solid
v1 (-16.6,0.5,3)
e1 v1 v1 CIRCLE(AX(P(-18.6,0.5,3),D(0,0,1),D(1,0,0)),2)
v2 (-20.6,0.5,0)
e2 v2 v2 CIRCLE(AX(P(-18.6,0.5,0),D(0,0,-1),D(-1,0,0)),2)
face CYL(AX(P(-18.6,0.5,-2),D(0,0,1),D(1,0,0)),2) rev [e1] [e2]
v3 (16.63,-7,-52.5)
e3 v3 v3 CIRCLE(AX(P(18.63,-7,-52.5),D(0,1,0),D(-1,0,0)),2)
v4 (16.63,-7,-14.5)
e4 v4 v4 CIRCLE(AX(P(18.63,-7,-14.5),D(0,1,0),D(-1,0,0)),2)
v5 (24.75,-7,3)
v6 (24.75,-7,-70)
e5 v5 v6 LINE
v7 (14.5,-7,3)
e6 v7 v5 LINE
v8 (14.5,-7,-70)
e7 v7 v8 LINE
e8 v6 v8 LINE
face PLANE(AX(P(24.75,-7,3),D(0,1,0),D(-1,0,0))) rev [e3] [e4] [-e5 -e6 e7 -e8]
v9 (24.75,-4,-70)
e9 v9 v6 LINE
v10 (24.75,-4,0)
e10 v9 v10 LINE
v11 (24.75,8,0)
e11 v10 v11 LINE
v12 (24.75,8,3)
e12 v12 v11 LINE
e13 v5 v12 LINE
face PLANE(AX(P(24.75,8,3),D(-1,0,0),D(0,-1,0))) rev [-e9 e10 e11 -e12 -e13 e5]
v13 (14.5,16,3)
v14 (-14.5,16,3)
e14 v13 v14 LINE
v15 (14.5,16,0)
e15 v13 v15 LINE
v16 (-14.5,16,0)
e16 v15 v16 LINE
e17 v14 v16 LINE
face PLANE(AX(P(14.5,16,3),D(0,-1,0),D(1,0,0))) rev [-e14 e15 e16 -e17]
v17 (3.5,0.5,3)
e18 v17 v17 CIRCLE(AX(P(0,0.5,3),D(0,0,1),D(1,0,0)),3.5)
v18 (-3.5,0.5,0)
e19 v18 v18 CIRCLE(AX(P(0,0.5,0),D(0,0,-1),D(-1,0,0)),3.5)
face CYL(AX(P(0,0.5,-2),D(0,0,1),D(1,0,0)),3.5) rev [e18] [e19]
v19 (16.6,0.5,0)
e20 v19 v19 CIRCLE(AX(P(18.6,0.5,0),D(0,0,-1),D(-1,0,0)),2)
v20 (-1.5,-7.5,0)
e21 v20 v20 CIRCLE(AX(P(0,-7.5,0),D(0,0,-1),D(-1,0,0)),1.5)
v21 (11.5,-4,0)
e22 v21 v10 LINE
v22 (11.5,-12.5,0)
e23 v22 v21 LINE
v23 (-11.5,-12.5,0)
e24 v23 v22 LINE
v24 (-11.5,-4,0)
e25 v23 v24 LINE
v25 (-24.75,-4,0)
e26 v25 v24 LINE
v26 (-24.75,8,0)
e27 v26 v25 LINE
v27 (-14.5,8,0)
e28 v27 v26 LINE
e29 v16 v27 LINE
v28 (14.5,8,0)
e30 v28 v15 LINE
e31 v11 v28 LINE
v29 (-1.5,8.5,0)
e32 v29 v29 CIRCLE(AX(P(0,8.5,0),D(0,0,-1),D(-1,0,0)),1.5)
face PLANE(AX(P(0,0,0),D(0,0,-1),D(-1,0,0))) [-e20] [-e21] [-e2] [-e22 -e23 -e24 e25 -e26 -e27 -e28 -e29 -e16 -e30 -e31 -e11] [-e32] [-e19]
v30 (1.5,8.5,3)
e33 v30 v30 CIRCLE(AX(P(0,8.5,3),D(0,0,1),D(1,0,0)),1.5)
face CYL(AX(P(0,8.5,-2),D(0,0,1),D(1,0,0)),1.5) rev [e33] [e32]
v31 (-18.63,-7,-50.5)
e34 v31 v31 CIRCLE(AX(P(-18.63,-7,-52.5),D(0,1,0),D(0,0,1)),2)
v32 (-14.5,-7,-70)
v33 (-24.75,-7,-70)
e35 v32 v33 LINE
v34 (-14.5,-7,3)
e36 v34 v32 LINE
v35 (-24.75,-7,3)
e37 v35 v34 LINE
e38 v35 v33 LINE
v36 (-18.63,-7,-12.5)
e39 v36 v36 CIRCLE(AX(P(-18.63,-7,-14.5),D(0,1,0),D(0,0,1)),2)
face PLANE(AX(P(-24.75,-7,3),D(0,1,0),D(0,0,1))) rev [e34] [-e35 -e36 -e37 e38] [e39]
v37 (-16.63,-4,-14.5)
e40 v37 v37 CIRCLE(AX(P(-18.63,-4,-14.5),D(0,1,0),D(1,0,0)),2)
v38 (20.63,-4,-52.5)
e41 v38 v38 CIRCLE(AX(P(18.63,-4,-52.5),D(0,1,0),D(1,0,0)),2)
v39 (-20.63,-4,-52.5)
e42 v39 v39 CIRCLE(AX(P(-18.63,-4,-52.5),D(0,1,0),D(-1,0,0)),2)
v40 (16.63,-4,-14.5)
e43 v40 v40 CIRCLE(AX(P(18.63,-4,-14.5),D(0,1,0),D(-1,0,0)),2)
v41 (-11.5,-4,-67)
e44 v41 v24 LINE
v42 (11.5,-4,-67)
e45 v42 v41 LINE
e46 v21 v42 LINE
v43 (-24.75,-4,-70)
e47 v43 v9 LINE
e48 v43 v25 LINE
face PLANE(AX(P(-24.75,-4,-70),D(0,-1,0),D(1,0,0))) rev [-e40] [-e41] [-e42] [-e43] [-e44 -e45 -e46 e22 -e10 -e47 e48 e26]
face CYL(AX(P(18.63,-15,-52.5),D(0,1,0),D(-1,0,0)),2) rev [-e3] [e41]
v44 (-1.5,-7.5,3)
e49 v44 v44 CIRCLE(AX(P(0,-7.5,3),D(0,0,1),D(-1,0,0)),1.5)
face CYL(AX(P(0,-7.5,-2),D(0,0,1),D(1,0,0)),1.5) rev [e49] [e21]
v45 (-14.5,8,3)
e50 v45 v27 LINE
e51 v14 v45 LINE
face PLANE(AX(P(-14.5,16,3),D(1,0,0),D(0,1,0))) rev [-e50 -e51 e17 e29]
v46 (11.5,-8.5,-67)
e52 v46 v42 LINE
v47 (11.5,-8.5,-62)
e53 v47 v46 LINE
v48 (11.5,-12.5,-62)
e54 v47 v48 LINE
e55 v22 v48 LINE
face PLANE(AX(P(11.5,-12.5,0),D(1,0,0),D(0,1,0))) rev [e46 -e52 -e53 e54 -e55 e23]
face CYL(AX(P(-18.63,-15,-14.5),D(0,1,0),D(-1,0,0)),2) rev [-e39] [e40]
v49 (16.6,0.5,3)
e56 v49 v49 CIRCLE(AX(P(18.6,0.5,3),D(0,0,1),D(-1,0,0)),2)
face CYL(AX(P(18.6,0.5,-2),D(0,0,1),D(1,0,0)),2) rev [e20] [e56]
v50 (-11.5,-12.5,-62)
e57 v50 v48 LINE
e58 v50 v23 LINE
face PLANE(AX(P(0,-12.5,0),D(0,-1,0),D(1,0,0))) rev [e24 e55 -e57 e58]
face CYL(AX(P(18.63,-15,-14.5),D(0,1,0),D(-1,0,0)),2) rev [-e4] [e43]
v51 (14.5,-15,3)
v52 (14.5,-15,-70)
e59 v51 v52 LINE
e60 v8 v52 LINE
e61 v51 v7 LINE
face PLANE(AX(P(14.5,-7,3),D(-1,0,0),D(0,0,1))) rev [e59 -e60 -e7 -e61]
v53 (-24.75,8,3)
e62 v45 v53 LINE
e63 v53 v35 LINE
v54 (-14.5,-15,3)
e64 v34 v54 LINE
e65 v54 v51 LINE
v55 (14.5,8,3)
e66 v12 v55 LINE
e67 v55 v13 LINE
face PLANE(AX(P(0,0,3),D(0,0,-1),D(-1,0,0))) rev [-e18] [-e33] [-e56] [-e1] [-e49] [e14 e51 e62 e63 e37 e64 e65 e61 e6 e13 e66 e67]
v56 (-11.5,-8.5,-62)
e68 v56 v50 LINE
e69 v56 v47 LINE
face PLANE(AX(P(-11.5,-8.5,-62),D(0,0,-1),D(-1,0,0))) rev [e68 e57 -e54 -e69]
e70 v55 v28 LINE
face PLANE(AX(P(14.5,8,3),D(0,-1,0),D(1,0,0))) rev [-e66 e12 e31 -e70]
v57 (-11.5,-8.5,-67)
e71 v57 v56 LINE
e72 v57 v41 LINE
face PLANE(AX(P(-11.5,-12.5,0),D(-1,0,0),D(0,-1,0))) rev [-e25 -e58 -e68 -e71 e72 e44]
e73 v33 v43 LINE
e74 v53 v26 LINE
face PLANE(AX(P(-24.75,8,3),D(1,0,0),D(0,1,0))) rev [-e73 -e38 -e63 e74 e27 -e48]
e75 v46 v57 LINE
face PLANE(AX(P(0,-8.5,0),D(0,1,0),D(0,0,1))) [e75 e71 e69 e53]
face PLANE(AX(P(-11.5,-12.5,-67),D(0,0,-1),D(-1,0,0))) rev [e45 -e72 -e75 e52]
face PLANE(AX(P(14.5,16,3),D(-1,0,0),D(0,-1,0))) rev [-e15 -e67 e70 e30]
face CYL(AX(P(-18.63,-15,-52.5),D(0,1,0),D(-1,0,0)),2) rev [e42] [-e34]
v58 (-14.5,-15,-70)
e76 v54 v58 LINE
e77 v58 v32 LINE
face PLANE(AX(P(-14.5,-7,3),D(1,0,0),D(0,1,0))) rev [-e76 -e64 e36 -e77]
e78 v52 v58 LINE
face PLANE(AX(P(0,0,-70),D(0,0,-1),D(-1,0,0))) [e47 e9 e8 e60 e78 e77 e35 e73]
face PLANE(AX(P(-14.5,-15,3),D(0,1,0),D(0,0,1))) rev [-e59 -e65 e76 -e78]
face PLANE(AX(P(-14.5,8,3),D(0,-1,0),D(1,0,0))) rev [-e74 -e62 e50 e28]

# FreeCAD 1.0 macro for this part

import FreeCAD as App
import Part
import Sketcher


def add_polygon(sketch, points):
    """Adds a closed chain of lines whose ends are joined by coincident constraints."""
    first, n = sketch.GeometryCount, len(points)
    for a, b in zip(points, points[1:] + points[:1]):
        sketch.addGeometry(Part.LineSegment(App.Vector(*a, 0), App.Vector(*b, 0)), False)
    for i in range(n):
        sketch.addConstraint(Sketcher.Constraint("Coincident", first + i, 2, first + (i + 1) % n, 1))

doc = App.newDocument("Part")
params = doc.addObject("Spreadsheet::Sheet", "Params")
for row, (alias, value) in enumerate([
    ("sketch1_width", "29 mm"),
    ("sketch1_height", "8 mm"),
    ("sketch1_height2", "15 mm"),
    ("sketch1_width2", "10.25 mm"),
    ("pad1_length", "3 mm"),
    ("sketch2_width", "29 mm"),
    ("sketch2_height", "3 mm"),
    ("sketch2_height2", "8 mm"),
    ("sketch2_width2", "49.5 mm"),
    ("pad2_length", "70 mm"),
    ("sketch3_width", "23 mm"),
    ("sketch3_height", "67 mm"),
    ("pocket1_length", "8.5 mm"),
    ("sketch4_diameter", "7 mm"),
    ("sketch4_diameter2", "4 mm"),
    ("sketch4_diameter3", "3 mm"),
    ("pocket2_length", "5 mm"),
    ("sketch5_width", "23 mm"),
    ("sketch5_height", "5 mm"),
    ("pad3_length", "4 mm"),
    ("sketch6_diameter", "4 mm"),
], start=1):
    params.set(f"A{row}", alias)
    params.set(f"B{row}", "=" + value)
    params.setAlias(f"B{row}", alias)

body = doc.addObject("PartDesign::Body", "Body")

# Sketch on XY plane
sketch1 = body.newObject("Sketcher::SketchObject", "Sketch")
sketch1.AttachmentSupport = (doc.getObject("XY_Plane"), [""])
sketch1.MapMode = "FlatFace"
add_polygon(sketch1, [(14.5, 16), (-14.5, 16), (-14.5, 8), (-24.75, 8), (-24.75, -7), (-14.5, -7), (-14.5, -15), (14.5, -15), (14.5, -7), (24.75, -7), (24.75, 8), (14.5, 8)])  # lines 0-11
sketch1.addConstraint([
    Sketcher.Constraint("Horizontal", 0),
    Sketcher.Constraint("Vertical", 1),
    Sketcher.Constraint("Horizontal", 2),
    Sketcher.Constraint("Vertical", 3),
    Sketcher.Constraint("Horizontal", 4),
    Sketcher.Constraint("Vertical", 5),
    Sketcher.Constraint("Horizontal", 6),
    Sketcher.Constraint("Vertical", 7),
    Sketcher.Constraint("Horizontal", 8),
    Sketcher.Constraint("Vertical", 9),
    Sketcher.Constraint("Horizontal", 10),
    Sketcher.Constraint("Vertical", 11),
    Sketcher.Constraint("Symmetric", 4, 2, 7, 2, -2),
    Sketcher.Constraint("Symmetric", 2, 2, 9, 2, -2),
    Sketcher.Constraint("Vertical", 1, 2, 4, 2),
    Sketcher.Constraint("Vertical", 7, 2, 10, 2),
    Sketcher.Constraint("Equal", 1, 5),
    Sketcher.Constraint("DistanceX", 0, 2, 0, 1, 29.0),
    Sketcher.Constraint("DistanceY", 1, 2, 1, 1, 8.0),
    Sketcher.Constraint("DistanceY", 3, 2, 3, 1, 15.0),
    Sketcher.Constraint("DistanceY", -1, 1, 0, 2, 16.0),
    Sketcher.Constraint("DistanceX", 2, 2, 2, 1, 10.25),
])
sketch1.setExpression("Constraints[29]", "Params.sketch1_width")
sketch1.setExpression("Constraints[30]", "Params.sketch1_height")
sketch1.setExpression("Constraints[31]", "Params.sketch1_height2")
sketch1.setExpression("Constraints[33]", "Params.sketch1_width2")
pad1 = body.newObject("PartDesign::Pad", "Pad")
pad1.Profile = sketch1
pad1.setExpression("Length", "Params.pad1_length")

# Sketch on XY plane
sketch2 = body.newObject("Sketcher::SketchObject", "Sketch001")
sketch2.AttachmentSupport = (doc.getObject("XY_Plane"), [""])
sketch2.MapMode = "FlatFace"
add_polygon(sketch2, [(24.75, -4), (24.75, -7), (14.5, -7), (14.5, -15), (-14.5, -15), (-14.5, -7), (-24.75, -7), (-24.75, -4)])  # lines 0-7
sketch2.addConstraint([
    Sketcher.Constraint("Vertical", 0),
    Sketcher.Constraint("Horizontal", 1),
    Sketcher.Constraint("Vertical", 2),
    Sketcher.Constraint("Horizontal", 3),
    Sketcher.Constraint("Vertical", 4),
    Sketcher.Constraint("Horizontal", 5),
    Sketcher.Constraint("Vertical", 6),
    Sketcher.Constraint("Horizontal", 7),
    Sketcher.Constraint("Symmetric", 1, 2, 4, 2, -2),
    Sketcher.Constraint("Equal", 1, 5),
    Sketcher.Constraint("DistanceX", 3, 2, 3, 1, 29.0),
    Sketcher.Constraint("DistanceY", 0, 2, 0, 1, 3.0),
    Sketcher.Constraint("DistanceY", 2, 2, 2, 1, 8.0),
    Sketcher.Constraint("DistanceX", 7, 1, 7, 2, 49.5),
    Sketcher.Constraint("DistanceY", 0, 2, -1, 1, 7.0),
])
sketch2.setExpression("Constraints[18]", "Params.sketch2_width")
sketch2.setExpression("Constraints[19]", "Params.sketch2_height")
sketch2.setExpression("Constraints[20]", "Params.sketch2_height2")
sketch2.setExpression("Constraints[21]", "Params.sketch2_width2")
pad2 = body.newObject("PartDesign::Pad", "Pad001")
pad2.Profile = sketch2
pad2.setExpression("Length", "Params.pad2_length")
pad2.Reversed = True

# Sketch on XZ plane
sketch3 = body.newObject("Sketcher::SketchObject", "Sketch002")
sketch3.AttachmentSupport = (doc.getObject("XZ_Plane"), [""])
sketch3.MapMode = "FlatFace"
sketch3.AttachmentOffset = App.Placement(App.Vector(0, 0, 4), App.Rotation())
add_polygon(sketch3, [(-11.5, -67), (-11.5, 0), (11.5, 0), (11.5, -67)])  # lines 0-3
sketch3.addConstraint([
    Sketcher.Constraint("Vertical", 0),
    Sketcher.Constraint("Horizontal", 1),
    Sketcher.Constraint("Vertical", 2),
    Sketcher.Constraint("Horizontal", 3),
    Sketcher.Constraint("Symmetric", 0, 2, 1, 2, -1, 1),
    Sketcher.Constraint("DistanceX", 1, 1, 1, 2, 23.0),
    Sketcher.Constraint("DistanceY", 0, 1, 0, 2, 67.0),
])
sketch3.setExpression("Constraints[9]", "Params.sketch3_width")
sketch3.setExpression("Constraints[10]", "Params.sketch3_height")
pocket1 = body.newObject("PartDesign::Pocket", "Pocket")
pocket1.Profile = sketch3
pocket1.setExpression("Length", "Params.pocket1_length")
pocket1.Reversed = True

# Sketch on XY plane
sketch4 = body.newObject("Sketcher::SketchObject", "Sketch003")
sketch4.AttachmentSupport = (doc.getObject("XY_Plane"), [""])
sketch4.MapMode = "FlatFace"
sketch4.AttachmentOffset = App.Placement(App.Vector(0, 0, 3), App.Rotation())
sketch4.addGeometry([
    Part.Circle(App.Vector(0, 0.5, 0), App.Vector(0, 0, 1), 3.5),  # 0
    Part.Circle(App.Vector(-18.6, 0.5, 0), App.Vector(0, 0, 1), 2),  # 1
    Part.Circle(App.Vector(18.6, 0.5, 0), App.Vector(0, 0, 1), 2),  # 2
    Part.Circle(App.Vector(0, 8.5, 0), App.Vector(0, 0, 1), 1.5),  # 3
    Part.Circle(App.Vector(0, -7.5, 0), App.Vector(0, 0, 1), 1.5),  # 4
], False)
sketch4.addConstraint([
    Sketcher.Constraint("Equal", 1, 2),
    Sketcher.Constraint("Equal", 3, 4),
    Sketcher.Constraint("Symmetric", 1, 3, 2, 3, -2),
    Sketcher.Constraint("PointOnObject", 0, 3, -2),
    Sketcher.Constraint("PointOnObject", 3, 3, -2),
    Sketcher.Constraint("PointOnObject", 4, 3, -2),
    Sketcher.Constraint("Horizontal", 0, 3, 1, 3),
    Sketcher.Constraint("Diameter", 0, 7.0),
    Sketcher.Constraint("Diameter", 1, 4.0),
    Sketcher.Constraint("Diameter", 3, 3.0),
    Sketcher.Constraint("DistanceY", 0, 3, 3, 3, 8.0),
    Sketcher.Constraint("DistanceY", 4, 3, 0, 3, 8.0),
    Sketcher.Constraint("DistanceY", -1, 1, 0, 3, 0.5),
    Sketcher.Constraint("DistanceX", 1, 3, -1, 1, 18.6),
])
sketch4.setExpression("Constraints[7]", "Params.sketch4_diameter")
sketch4.setExpression("Constraints[8]", "Params.sketch4_diameter2")
sketch4.setExpression("Constraints[9]", "Params.sketch4_diameter3")
pocket2 = body.newObject("PartDesign::Pocket", "Pocket001")
pocket2.Profile = sketch4
pocket2.setExpression("Length", "Params.pocket2_length")

# Sketch on XZ plane
sketch5 = body.newObject("Sketcher::SketchObject", "Sketch004")
sketch5.AttachmentSupport = (doc.getObject("XZ_Plane"), [""])
sketch5.MapMode = "FlatFace"
sketch5.AttachmentOffset = App.Placement(App.Vector(0, 0, 12.5), App.Rotation())
add_polygon(sketch5, [(-11.5, -67), (-11.5, -62), (11.5, -62), (11.5, -67)])  # lines 0-3
sketch5.addConstraint([
    Sketcher.Constraint("Vertical", 0),
    Sketcher.Constraint("Horizontal", 1),
    Sketcher.Constraint("Vertical", 2),
    Sketcher.Constraint("Horizontal", 3),
    Sketcher.Constraint("DistanceX", 1, 1, 1, 2, 23.0),
    Sketcher.Constraint("DistanceY", 0, 1, 0, 2, 5.0),
    Sketcher.Constraint("DistanceY", 0, 2, -1, 1, 62.0),
    Sketcher.Constraint("DistanceX", 0, 2, -1, 1, 11.5),
])
sketch5.setExpression("Constraints[8]", "Params.sketch5_width")
sketch5.setExpression("Constraints[9]", "Params.sketch5_height")
pad3 = body.newObject("PartDesign::Pad", "Pad002")
pad3.Profile = sketch5
pad3.setExpression("Length", "Params.pad3_length")
pad3.Reversed = True

# Sketch on XZ plane
sketch6 = body.newObject("Sketcher::SketchObject", "Sketch005")
sketch6.AttachmentSupport = (doc.getObject("XZ_Plane"), [""])
sketch6.MapMode = "FlatFace"
sketch6.AttachmentOffset = App.Placement(App.Vector(0, 0, 4), App.Rotation())
sketch6.addGeometry([
    Part.Circle(App.Vector(-18.63, -52.5, 0), App.Vector(0, 0, 1), 2),
    Part.Circle(App.Vector(-18.63, -14.5, 0), App.Vector(0, 0, 1), 2),
    Part.Circle(App.Vector(18.63, -14.5, 0), App.Vector(0, 0, 1), 2),
    Part.Circle(App.Vector(18.63, -52.5, 0), App.Vector(0, 0, 1), 2),
], False)
sketch6.addConstraint([
    Sketcher.Constraint("Equal", 0, 1),
    Sketcher.Constraint("Equal", 1, 2),
    Sketcher.Constraint("Equal", 2, 3),
    Sketcher.Constraint("Symmetric", 1, 3, 2, 3, -2),
    Sketcher.Constraint("Symmetric", 0, 3, 3, 3, -2),
    Sketcher.Constraint("Vertical", 0, 3, 1, 3),
    Sketcher.Constraint("Diameter", 0, 4.0),
    Sketcher.Constraint("DistanceY", 0, 3, 1, 3, 38.0),
    Sketcher.Constraint("DistanceY", 0, 3, -1, 1, 52.5),
    Sketcher.Constraint("DistanceX", 0, 3, -1, 1, 18.63),
])
sketch6.setExpression("Constraints[6]", "Params.sketch6_diameter")
pocket3 = body.newObject("PartDesign::Pocket", "Pocket002")
pocket3.Profile = sketch6
pocket3.Type = "ThroughAll"
pocket3.Reversed = True

doc.recompute()
